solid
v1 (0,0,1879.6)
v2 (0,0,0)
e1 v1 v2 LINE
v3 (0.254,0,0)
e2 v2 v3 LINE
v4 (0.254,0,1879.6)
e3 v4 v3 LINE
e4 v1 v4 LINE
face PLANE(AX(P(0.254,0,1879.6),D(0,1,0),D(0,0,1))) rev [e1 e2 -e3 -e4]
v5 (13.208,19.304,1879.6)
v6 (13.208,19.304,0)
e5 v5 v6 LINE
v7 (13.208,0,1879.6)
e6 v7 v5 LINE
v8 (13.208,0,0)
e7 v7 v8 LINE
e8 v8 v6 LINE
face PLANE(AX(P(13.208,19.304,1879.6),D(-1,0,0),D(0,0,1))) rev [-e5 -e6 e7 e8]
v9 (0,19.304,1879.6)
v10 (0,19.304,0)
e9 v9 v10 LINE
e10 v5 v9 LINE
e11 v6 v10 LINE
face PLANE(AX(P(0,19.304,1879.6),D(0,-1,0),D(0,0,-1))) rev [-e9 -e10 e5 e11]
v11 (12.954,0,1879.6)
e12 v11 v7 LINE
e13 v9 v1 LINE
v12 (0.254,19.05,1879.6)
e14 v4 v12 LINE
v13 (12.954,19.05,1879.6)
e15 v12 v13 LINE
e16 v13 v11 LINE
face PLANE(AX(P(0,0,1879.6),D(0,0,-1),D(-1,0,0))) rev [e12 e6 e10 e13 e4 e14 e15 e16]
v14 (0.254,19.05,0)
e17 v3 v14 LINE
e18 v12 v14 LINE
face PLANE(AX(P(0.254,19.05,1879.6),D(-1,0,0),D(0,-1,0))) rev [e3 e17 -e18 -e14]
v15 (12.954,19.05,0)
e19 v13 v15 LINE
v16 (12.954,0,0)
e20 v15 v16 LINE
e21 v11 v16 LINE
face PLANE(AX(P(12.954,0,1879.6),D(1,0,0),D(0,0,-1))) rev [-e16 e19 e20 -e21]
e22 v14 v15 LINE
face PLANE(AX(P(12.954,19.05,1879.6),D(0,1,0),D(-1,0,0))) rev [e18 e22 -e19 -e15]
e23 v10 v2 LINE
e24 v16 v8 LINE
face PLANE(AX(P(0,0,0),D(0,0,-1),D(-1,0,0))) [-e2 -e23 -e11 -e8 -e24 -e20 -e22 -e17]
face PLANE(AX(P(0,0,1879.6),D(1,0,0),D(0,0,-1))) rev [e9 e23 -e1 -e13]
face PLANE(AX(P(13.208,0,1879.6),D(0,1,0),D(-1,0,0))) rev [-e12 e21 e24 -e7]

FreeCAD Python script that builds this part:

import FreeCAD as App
import Part
import Sketcher

V = App.Vector
Q = App.Units.Quantity


def add_polygon(sketch, points):
    """Adds a closed chain of lines whose ends are joined by coincident constraints."""
    first, n = sketch.GeometryCount, len(points)
    for a, b in zip(points, points[1:] + points[:1]):
        sketch.addGeometry(Part.LineSegment(App.Vector(*a, 0), App.Vector(*b, 0)), False)
    for i in range(n):
        sketch.addConstraint(Sketcher.Constraint("Coincident", first + i, 2, first + (i + 1) % n, 1))

doc = App.newDocument("Part")
body = doc.addObject("PartDesign::Body", "Body")

# Sketch on XY plane
sketch1 = body.newObject("Sketcher::SketchObject", "Sketch")
sketch1.AttachmentSupport = (doc.getObject("XY_Plane"), [""])
sketch1.MapMode = "FlatFace"
add_polygon(sketch1, [(0, 19.304), (0, 0), (0.254, 0), (0.254, 19.05), (12.954, 19.05), (12.954, 0), (13.208, 0), (13.208, 19.304)])  # lines 0-7
sketch1.addConstraint([
    Sketcher.Constraint("Vertical", 0),
    Sketcher.Constraint("Horizontal", 1),
    Sketcher.Constraint("Vertical", 2),
    Sketcher.Constraint("Horizontal", 3),
    Sketcher.Constraint("Vertical", 4),
    Sketcher.Constraint("Horizontal", 5),
    Sketcher.Constraint("Vertical", 6),
    Sketcher.Constraint("Horizontal", 7),
    Sketcher.Constraint("Coincident", 0, 2, -1, 1),
    Sketcher.Constraint("PointOnObject", 4, 2, -1),
    Sketcher.Constraint("Equal", 1, 5),
    Sketcher.Constraint("DistanceX", 3, 1, 3, 2, Q("0.5 in")),
    Sketcher.Constraint("DistanceX", 1, 1, 1, 2, Q("0.01 in")),
    Sketcher.Constraint("DistanceY", 0, 2, 0, 1, Q("0.76 in")),
    Sketcher.Constraint("DistanceY", 2, 1, 2, 2, Q("0.75 in")),
])
pad1 = body.newObject("PartDesign::Pad", "Pad")
pad1.Profile = sketch1
pad1.Length = Q("74 in")

doc.recompute()
